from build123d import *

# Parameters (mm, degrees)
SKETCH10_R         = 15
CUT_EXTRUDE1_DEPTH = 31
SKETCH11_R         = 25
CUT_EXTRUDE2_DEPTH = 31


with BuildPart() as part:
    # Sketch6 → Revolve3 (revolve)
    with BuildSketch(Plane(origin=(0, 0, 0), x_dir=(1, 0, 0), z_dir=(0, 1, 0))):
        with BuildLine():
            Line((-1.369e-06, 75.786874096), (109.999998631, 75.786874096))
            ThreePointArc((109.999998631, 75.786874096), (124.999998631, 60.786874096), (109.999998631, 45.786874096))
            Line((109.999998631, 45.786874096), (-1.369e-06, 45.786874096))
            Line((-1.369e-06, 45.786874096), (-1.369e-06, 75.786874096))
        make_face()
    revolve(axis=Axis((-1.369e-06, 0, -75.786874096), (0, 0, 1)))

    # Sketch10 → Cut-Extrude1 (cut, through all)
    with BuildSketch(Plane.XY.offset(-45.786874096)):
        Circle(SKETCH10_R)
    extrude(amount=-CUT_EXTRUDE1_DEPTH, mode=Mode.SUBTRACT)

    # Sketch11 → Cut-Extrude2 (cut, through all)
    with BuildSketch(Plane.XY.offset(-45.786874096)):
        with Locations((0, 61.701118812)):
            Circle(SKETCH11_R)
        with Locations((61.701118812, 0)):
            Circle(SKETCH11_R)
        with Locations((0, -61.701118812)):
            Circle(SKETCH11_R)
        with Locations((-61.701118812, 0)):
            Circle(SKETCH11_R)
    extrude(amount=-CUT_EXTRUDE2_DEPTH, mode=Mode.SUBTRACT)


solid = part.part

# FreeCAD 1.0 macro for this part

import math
import FreeCAD as App
import Part
import Sketcher

V = App.Vector
Q = App.Units.Quantity

doc = App.newDocument("Part")
body = doc.addObject("PartDesign::Body", "Body")

# Sketch on XZ plane
sketch1 = doc.addObject("Sketcher::SketchObject", "Sketch")
body.addObject(sketch1)
sketch1.AttachmentSupport = (doc.XZ_Plane, [""])
sketch1.MapMode = "FlatFace"
sketch1.addGeometry([
    Part.LineSegment(V(110, -76, 0), V(0, -76, 0)),
    Part.LineSegment(V(0, -76, 0), V(0, -46, 0)),
    Part.LineSegment(V(0, -46, 0), V(110, -46, 0)),
    Part.ArcOfCircle(Part.Circle(V(110, -61, 0), V(0, 0, 1), 15), math.radians(-90), math.radians(90)),
], False)
sketch1.addConstraint([
    Sketcher.Constraint("Coincident", 0, 2, 1, 1),
    Sketcher.Constraint("Coincident", 1, 2, 2, 1),
    Sketcher.Constraint("Tangent", 2, 2, 3, 2),
    Sketcher.Constraint("Tangent", 3, 1, 0, 1),
    Sketcher.Constraint("Horizontal", 0),
    Sketcher.Constraint("Vertical", 1),
    Sketcher.Constraint("Horizontal", 2),
    Sketcher.Constraint("PointOnObject", 0, 2, -2),
    Sketcher.Constraint("Radius", 3, Q("15 mm")),
    Sketcher.Constraint("DistanceX", 0, 2, 0, 1, Q("110 mm")),
    Sketcher.Constraint("DistanceY", 3, 3, -1, 1, Q("60.786874 mm")),
])
revolution = doc.addObject("PartDesign::Revolution", "Revolution")
body.addObject(revolution)
revolution.Profile = sketch1
revolution.ReferenceAxis = (sketch1, ["V_Axis"])
revolution.Angle = 360

# Sketch on XY plane
sketch2 = doc.addObject("Sketcher::SketchObject", "Sketch001")
body.addObject(sketch2)
sketch2.AttachmentSupport = (doc.XY_Plane, [""])
sketch2.MapMode = "FlatFace"
sketch2.AttachmentOffset = App.Placement(V(0, 0, -45.786874), App.Rotation())
sketch2.addGeometry(Part.Circle(V(0, 0, 0), V(0, 0, 1), 15), False)
sketch2.addConstraint([
    Sketcher.Constraint("Coincident", 0, 3, -1, 1),
    Sketcher.Constraint("Diameter", 0, Q("30 mm")),
])
pocket1 = doc.addObject("PartDesign::Pocket", "Pocket")
body.addObject(pocket1)
pocket1.Profile = sketch2
pocket1.Type = "ThroughAll"

# Sketch on XY plane
sketch3 = doc.addObject("Sketcher::SketchObject", "Sketch002")
body.addObject(sketch3)
sketch3.AttachmentSupport = (doc.XY_Plane, [""])
sketch3.MapMode = "FlatFace"
sketch3.AttachmentOffset = App.Placement(V(0, 0, -45.786874), App.Rotation())
sketch3.addGeometry([
    Part.Circle(V(0, 62, 0), V(0, 0, 1), 25),
    Part.Circle(V(62, 0, 0), V(0, 0, 1), 25),
    Part.Circle(V(0, -62, 0), V(0, 0, 1), 25),
    Part.Circle(V(-62, 0, 0), V(0, 0, 1), 25),
], False)
sketch3.addConstraint([
    Sketcher.Constraint("Equal", 0, 1),
    Sketcher.Constraint("Equal", 1, 2),
    Sketcher.Constraint("Equal", 2, 3),
    Sketcher.Constraint("Symmetric", 0, 3, 2, 3, -1, 1),
    Sketcher.Constraint("Symmetric", 1, 3, 3, 3, -1, 1),
    Sketcher.Constraint("PointOnObject", 0, 3, -2),
    Sketcher.Constraint("PointOnObject", 1, 3, -1),
    Sketcher.Constraint("Diameter", 0, Q("50 mm")),
    Sketcher.Constraint("DistanceY", -1, 1, 0, 3, Q("61.701119 mm")),
    Sketcher.Constraint("DistanceX", -1, 1, 1, 3, Q("61.701119 mm")),
])
pocket2 = doc.addObject("PartDesign::Pocket", "Pocket001")
body.addObject(pocket2)
pocket2.Profile = sketch3
pocket2.Type = "ThroughAll"

doc.recompute()
